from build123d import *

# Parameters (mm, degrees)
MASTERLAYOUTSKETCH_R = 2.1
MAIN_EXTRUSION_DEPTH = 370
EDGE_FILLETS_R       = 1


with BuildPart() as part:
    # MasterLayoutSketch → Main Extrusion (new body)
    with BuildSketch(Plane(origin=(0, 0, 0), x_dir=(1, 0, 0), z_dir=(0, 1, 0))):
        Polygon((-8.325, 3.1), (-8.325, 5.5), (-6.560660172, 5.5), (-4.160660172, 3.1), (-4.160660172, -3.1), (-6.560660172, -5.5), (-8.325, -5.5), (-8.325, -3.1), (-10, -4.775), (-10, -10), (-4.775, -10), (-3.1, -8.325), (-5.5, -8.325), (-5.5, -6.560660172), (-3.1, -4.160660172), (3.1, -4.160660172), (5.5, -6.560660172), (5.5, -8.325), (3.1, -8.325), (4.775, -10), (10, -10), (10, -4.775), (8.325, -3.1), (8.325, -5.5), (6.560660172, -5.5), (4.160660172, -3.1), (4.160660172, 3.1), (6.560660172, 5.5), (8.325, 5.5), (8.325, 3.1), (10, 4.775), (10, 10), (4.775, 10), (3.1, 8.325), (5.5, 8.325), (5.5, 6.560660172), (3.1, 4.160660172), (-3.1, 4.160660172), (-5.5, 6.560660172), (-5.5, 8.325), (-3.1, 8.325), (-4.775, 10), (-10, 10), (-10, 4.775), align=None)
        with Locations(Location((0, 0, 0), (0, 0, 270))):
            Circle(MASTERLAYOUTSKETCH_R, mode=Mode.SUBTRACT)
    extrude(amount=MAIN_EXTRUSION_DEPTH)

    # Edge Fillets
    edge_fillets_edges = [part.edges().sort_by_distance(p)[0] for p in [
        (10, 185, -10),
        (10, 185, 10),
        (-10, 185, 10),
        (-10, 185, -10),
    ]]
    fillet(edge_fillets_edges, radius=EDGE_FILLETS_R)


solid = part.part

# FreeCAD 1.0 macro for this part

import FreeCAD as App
import Part
import Sketcher

V = App.Vector


def edges_at(feature, points):
    """Names of the edges that pass closest to the given points."""
    edges = feature.Shape.Edges
    near = lambda p: min(range(len(edges)), key=lambda i: edges[i].distToShape(Part.Vertex(*p))[0])
    return sorted({f"Edge{near(p) + 1}" for p in points})


def add_polygon(sketch, points):
    """Adds a closed chain of lines whose ends are joined by coincident constraints."""
    first, n = sketch.GeometryCount, len(points)
    for a, b in zip(points, points[1:] + points[:1]):
        sketch.addGeometry(Part.LineSegment(App.Vector(*a, 0), App.Vector(*b, 0)), False)
    for i in range(n):
        sketch.addConstraint(Sketcher.Constraint("Coincident", first + i, 2, first + (i + 1) % n, 1))

doc = App.newDocument("Part")
body = doc.addObject("PartDesign::Body", "Body")

# Sketch on XZ plane
sketch1 = body.newObject("Sketcher::SketchObject", "Sketch")
sketch1.AttachmentSupport = (doc.getObject("XZ_Plane"), [""])
sketch1.MapMode = "FlatFace"
add_polygon(sketch1, [(-8.3, -3.1), (-8.3, -5.5), (-6.6, -5.5), (-4.2, -3.1), (-4.2, 3.1), (-6.6, 5.5), (-8.3, 5.5), (-8.3, 3.1), (-10, 4.8), (-10, 10), (-4.8, 10), (-3.1, 8.3), (-5.5, 8.3), (-5.5, 6.6), (-3.1, 4.2), (3.1, 4.2), (5.5, 6.6), (5.5, 8.3), (3.1, 8.3), (4.8, 10), (10, 10), (10, 4.8), (8.3, 3.1), (8.3, 5.5), (6.6, 5.5), (4.2, 3.1), (4.2, -3.1), (6.6, -5.5), (8.3, -5.5), (8.3, -3.1), (10, -4.8), (10, -10), (4.8, -10), (3.1, -8.3), (5.5, -8.3), (5.5, -6.6), (3.1, -4.2), (-3.1, -4.2), (-5.5, -6.6), (-5.5, -8.3), (-3.1, -8.3), (-4.8, -10), (-10, -10), (-10, -4.8)])  # lines 0-43
sketch1.addGeometry(Part.Circle(V(0, 0, 0), V(0, 0, 1), 2.1), False)  # 44
sketch1.addConstraint([
    Sketcher.Constraint("Vertical", 0),
    Sketcher.Constraint("Horizontal", 1),
    Sketcher.Constraint("Vertical", 3),
    Sketcher.Constraint("Horizontal", 5),
    Sketcher.Constraint("Vertical", 6),
    Sketcher.Constraint("Vertical", 8),
    Sketcher.Constraint("Horizontal", 9),
    Sketcher.Constraint("Horizontal", 11),
    Sketcher.Constraint("Vertical", 12),
    Sketcher.Constraint("Horizontal", 14),
    Sketcher.Constraint("Vertical", 16),
    Sketcher.Constraint("Horizontal", 17),
    Sketcher.Constraint("Horizontal", 19),
    Sketcher.Constraint("Vertical", 20),
    Sketcher.Constraint("Vertical", 22),
    Sketcher.Constraint("Horizontal", 23),
    Sketcher.Constraint("Vertical", 25),
    Sketcher.Constraint("Horizontal", 27),
    Sketcher.Constraint("Vertical", 28),
    Sketcher.Constraint("Vertical", 30),
    Sketcher.Constraint("Horizontal", 31),
    Sketcher.Constraint("Horizontal", 33),
    Sketcher.Constraint("Vertical", 34),
    Sketcher.Constraint("Horizontal", 36),
    Sketcher.Constraint("Vertical", 38),
    Sketcher.Constraint("Horizontal", 39),
    Sketcher.Constraint("Horizontal", 41),
    Sketcher.Constraint("Vertical", 42),
    Sketcher.Constraint("Coincident", 44, 3, -1, 1),
    Sketcher.Constraint("Symmetric", 0, 2, 22, 2, -1, 1),
    Sketcher.Constraint("Symmetric", 2, 2, 24, 2, -1, 1),
    Sketcher.Constraint("Symmetric", 4, 2, 26, 2, -1, 1),
    Sketcher.Constraint("Symmetric", 6, 2, 28, 2, -1, 1),
    Sketcher.Constraint("Symmetric", 7, 2, 29, 2, -1, 1),
    Sketcher.Constraint("Symmetric", 9, 2, 31, 2, -1, 1),
    Sketcher.Constraint("Symmetric", 10, 2, 32, 2, -1, 1),
    Sketcher.Constraint("Symmetric", 12, 2, 34, 2, -1, 1),
    Sketcher.Constraint("Symmetric", 13, 2, 35, 2, -1, 1),
    Sketcher.Constraint("Symmetric", 15, 2, 37, 2, -1, 1),
    Sketcher.Constraint("Symmetric", 17, 2, 39, 2, -1, 1),
    Sketcher.Constraint("Symmetric", 18, 2, 40, 2, -1, 1),
    Sketcher.Constraint("Symmetric", 20, 2, 42, 2, -1, 1),
    Sketcher.Constraint("Symmetric", 12, 2, 15, 2, -2),
    Sketcher.Constraint("Symmetric", 10, 2, 17, 2, -2),
    Sketcher.Constraint("Symmetric", 9, 2, 18, 2, -2),
    Sketcher.Constraint("Symmetric", 7, 2, 20, 2, -2),
    Sketcher.Constraint("Symmetric", 6, 2, 21, 2, -2),
    Sketcher.Constraint("Symmetric", 4, 2, 23, 2, -2),
    Sketcher.Constraint("Perpendicular", 2, 4),
    Sketcher.Constraint("Parallel", 4, 7),
    Sketcher.Constraint("Parallel", 7, 10),
    Sketcher.Constraint("Parallel", 10, 13),
    Sketcher.Constraint("Perpendicular", 13, 15),
    Sketcher.Constraint("Parallel", 15, 18),
    Sketcher.Constraint("Parallel", 21, 24),
    Sketcher.Constraint("Perpendicular", 24, 26),
    Sketcher.Constraint("Perpendicular", 35, 37),
    Sketcher.Constraint("Parallel", 40, 43),
    Sketcher.Constraint("Horizontal", 3, 2, 6, 2),
    Sketcher.Constraint("Vertical", 10, 2, 13, 2),
    Sketcher.Constraint("Equal", 39, 0),
    Sketcher.Constraint("Equal", 36, 3),
    Sketcher.Constraint("Equal", 41, 8),
    Sketcher.Constraint("Equal", 27, 12),
    Sketcher.Constraint("Equal", 7, 10),
    Sketcher.Constraint("Diameter", 44, 4.2),
    Sketcher.Constraint("DistanceX", 11, 2, 11, 1, 2.4),
    Sketcher.Constraint("DistanceX", 14, 1, 14, 2, 6.2),
    Sketcher.Constraint("DistanceX", 7, 2, -1, 1, 10.0),
    Sketcher.Constraint("DistanceX", 9, 1, 9, 2, 5.225),
    Sketcher.Constraint("DistanceX", 1, 1, 1, 2, 1.76434),
])
pad1 = body.newObject("PartDesign::Pad", "Pad")
pad1.Profile = sketch1
pad1.Length = 370
pad1.Reversed = True
doc.recompute()

fillet = body.newObject("PartDesign::Fillet", "Fillet")
fillet.Base = (pad1, edges_at(pad1, [
    (10, 185, -10),
    (10, 185, 10),
    (-10, 185, 10),
    (-10, 185, -10),
]))
fillet.Radius = 1

doc.recompute()
